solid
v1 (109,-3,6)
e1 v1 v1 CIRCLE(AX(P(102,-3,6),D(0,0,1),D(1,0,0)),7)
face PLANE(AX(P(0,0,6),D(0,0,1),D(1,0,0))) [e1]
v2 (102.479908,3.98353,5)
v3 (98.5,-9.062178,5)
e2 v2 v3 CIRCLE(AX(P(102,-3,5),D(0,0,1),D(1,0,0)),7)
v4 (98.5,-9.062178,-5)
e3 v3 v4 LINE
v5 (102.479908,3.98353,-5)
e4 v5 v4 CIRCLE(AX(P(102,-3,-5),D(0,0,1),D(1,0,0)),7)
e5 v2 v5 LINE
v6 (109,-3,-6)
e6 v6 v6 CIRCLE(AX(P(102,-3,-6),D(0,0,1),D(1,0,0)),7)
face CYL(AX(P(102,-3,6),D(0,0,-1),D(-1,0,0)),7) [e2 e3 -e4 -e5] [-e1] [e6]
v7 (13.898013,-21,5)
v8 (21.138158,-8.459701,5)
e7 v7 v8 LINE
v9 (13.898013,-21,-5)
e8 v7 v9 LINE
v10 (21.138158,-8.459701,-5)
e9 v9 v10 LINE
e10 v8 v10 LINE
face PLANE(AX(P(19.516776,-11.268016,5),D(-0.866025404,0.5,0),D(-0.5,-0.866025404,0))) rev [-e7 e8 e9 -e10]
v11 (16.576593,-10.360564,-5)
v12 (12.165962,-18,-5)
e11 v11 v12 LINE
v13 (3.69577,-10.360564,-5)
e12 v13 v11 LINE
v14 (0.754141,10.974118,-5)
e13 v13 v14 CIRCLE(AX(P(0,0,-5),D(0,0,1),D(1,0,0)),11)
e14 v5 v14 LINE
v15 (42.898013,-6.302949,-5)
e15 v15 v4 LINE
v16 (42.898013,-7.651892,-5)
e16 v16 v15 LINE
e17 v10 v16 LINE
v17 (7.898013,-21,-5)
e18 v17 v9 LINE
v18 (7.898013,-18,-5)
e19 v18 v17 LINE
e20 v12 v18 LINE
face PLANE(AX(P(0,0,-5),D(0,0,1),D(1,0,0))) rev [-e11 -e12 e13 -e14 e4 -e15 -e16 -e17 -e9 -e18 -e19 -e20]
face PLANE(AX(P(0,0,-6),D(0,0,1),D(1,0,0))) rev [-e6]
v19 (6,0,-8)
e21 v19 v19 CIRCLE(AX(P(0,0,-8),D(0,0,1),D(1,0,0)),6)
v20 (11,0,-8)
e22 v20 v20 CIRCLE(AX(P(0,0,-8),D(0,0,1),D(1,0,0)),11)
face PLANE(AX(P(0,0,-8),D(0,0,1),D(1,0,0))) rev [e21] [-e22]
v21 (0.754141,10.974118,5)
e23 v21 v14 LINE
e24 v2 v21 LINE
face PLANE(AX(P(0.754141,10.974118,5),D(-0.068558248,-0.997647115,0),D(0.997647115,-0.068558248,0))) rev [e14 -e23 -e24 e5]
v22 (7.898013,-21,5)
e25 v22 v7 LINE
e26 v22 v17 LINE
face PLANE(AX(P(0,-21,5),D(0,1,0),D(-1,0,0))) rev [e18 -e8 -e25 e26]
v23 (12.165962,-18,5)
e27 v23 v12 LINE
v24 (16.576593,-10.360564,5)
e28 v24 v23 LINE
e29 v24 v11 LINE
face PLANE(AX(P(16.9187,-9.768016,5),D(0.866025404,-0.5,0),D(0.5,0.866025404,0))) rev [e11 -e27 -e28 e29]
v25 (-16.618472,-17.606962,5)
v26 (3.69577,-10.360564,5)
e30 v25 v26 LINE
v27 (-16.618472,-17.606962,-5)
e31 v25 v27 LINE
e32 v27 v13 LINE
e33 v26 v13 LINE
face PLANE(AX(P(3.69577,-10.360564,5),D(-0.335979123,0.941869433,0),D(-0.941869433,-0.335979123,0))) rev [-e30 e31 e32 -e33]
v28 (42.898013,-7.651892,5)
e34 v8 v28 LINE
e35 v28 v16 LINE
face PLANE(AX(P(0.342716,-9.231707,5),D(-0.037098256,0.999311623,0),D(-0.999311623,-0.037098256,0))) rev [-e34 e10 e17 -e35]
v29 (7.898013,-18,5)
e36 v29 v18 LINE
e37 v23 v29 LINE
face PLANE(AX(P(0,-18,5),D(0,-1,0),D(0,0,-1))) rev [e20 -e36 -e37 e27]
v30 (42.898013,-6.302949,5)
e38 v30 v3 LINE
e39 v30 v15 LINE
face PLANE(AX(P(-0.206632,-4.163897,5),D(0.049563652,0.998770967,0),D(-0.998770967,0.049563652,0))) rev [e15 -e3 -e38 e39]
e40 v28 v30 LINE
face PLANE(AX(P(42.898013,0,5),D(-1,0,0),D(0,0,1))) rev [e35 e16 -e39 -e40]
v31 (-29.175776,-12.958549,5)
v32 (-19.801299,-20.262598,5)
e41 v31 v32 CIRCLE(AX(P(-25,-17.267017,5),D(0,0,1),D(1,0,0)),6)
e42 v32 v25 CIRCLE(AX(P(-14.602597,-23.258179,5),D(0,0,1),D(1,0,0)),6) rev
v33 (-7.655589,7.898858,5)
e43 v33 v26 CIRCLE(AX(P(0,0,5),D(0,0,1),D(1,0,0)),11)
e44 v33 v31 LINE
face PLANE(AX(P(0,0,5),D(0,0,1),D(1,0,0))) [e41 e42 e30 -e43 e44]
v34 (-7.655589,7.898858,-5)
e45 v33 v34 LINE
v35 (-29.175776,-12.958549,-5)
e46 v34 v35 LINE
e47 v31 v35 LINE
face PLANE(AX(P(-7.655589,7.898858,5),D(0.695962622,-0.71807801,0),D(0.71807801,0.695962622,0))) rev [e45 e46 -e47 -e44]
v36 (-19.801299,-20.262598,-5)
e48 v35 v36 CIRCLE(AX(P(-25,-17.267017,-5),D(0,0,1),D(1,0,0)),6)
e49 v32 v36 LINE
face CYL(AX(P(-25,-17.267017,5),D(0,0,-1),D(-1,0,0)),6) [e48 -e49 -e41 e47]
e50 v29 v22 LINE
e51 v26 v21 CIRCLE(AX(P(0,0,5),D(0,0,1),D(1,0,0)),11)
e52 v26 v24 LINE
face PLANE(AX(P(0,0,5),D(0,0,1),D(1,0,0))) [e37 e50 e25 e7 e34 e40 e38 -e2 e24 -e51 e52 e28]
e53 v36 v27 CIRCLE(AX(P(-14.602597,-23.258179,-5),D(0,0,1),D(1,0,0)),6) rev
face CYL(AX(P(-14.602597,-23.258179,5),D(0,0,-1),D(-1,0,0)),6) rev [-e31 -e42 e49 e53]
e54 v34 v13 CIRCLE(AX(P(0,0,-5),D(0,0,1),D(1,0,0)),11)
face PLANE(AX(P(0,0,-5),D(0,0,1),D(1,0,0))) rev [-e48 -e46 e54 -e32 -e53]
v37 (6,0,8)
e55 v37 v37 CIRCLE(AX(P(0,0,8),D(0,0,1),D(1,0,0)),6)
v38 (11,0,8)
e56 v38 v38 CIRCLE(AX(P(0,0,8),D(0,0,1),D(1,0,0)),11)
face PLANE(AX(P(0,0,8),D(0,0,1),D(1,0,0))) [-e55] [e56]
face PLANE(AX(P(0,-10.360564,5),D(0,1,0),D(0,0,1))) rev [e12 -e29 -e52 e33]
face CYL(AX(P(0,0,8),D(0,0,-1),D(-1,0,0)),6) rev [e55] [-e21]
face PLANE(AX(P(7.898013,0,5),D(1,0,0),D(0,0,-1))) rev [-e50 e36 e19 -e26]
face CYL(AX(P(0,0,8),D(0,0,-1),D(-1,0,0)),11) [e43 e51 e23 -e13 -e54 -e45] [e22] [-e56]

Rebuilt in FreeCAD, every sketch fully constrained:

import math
import FreeCAD as App
import Part
import Sketcher
from FreeCAD import Vector
Q = App.Units.Quantity

doc = App.newDocument("Part")
body = doc.addObject("PartDesign::Body", "Body")

sketch1 = body.newObject("Sketcher::SketchObject", "Sketch")
sketch1.AttachmentSupport = (doc.getObject("XY_Plane"), [""])
sketch1.MapMode = "FlatFace"
sketch1.addGeometry(Part.Circle(Vector(0, 0, 0), Vector(0, 0, 1), 11), False)
sketch1.addGeometry(Part.Circle(Vector(0, 0, 0), Vector(0, 0, 1), 6), False)
sketch1.addConstraint(Sketcher.Constraint("Coincident", 0, 3, -1, 1))
sketch1.addConstraint(Sketcher.Constraint("Coincident", 1, 3, -1, 1))
sketch1.addConstraint(Sketcher.Constraint("Diameter", 0, Q("22 mm")))
sketch1.addConstraint(Sketcher.Constraint("Diameter", 1, Q("12 mm")))
pad1 = body.newObject("PartDesign::Pad", "Pad")
pad1.Profile = sketch1
pad1.Length = 16
pad1.Midplane = True
body2 = doc.addObject("PartDesign::Body", "Body001")

sketch2 = body2.newObject("Sketcher::SketchObject", "Sketch001")
sketch2.AttachmentSupport = (doc.getObject("XY_Plane001"), [""])
sketch2.MapMode = "FlatFace"
sketch2.addGeometry(Part.Circle(Vector(102, -3, 0), Vector(0, 0, 1), 7), False)
sketch2.addConstraint(Sketcher.Constraint("Diameter", 0, Q("14 mm")))
sketch2.addConstraint(Sketcher.Constraint("DistanceX", -1, 1, 0, 3, Q("102 mm")))
sketch2.addConstraint(Sketcher.Constraint("DistanceY", 0, 3, -1, 1, Q("3 mm")))
pad2 = body2.newObject("PartDesign::Pad", "Pad001")
pad2.Profile = sketch2
pad2.Length = 12
pad2.Midplane = True
body.AllowCompound = True
doc.recompute()

boolean = body.newObject("PartDesign::Boolean", "Boolean")
boolean.Type = "Fuse"
boolean.addObjects([body2])

sketch3 = body.newObject("Sketcher::SketchObject", "Sketch002")
sketch3.AttachmentSupport = (doc.getObject("XY_Plane"), [""])
sketch3.MapMode = "FlatFace"
sketch3.addGeometry(Part.ArcOfCircle(Part.Circle(Vector(0, 0, 0), Vector(0, 0, 1), 11), math.radians(86), math.radians(134)), False)
sketch3.addGeometry(Part.LineSegment(Vector(-7.7, 7.9, 0), Vector(-29.2, -13, 0)), False)
sketch3.addGeometry(Part.ArcOfCircle(Part.Circle(Vector(-25, -17.3, 0), Vector(0, 0, 1), 6), math.radians(134), math.radians(330)), False)
sketch3.addGeometry(Part.ArcOfCircle(Part.Circle(Vector(-14.6, -23.3, 0), Vector(0, 0, 1), 6), math.radians(110), math.radians(150)), False)
sketch3.addGeometry(Part.LineSegment(Vector(-16.6, -17.6, 0), Vector(3.7, -10.4, 0)), False)
sketch3.addGeometry(Part.LineSegment(Vector(3.7, -10.4, 0), Vector(16.6, -10.4, 0)), False)
sketch3.addGeometry(Part.LineSegment(Vector(16.6, -10.4, 0), Vector(12.2, -18, 0)), False)
sketch3.addGeometry(Part.LineSegment(Vector(12.2, -18, 0), Vector(7.9, -18, 0)), False)
sketch3.addGeometry(Part.LineSegment(Vector(7.9, -18, 0), Vector(7.9, -21, 0)), False)
sketch3.addGeometry(Part.LineSegment(Vector(7.9, -21, 0), Vector(13.9, -21, 0)), False)
sketch3.addGeometry(Part.LineSegment(Vector(13.9, -21, 0), Vector(21.1, -8.5, 0)), False)
sketch3.addGeometry(Part.LineSegment(Vector(21.1, -8.5, 0), Vector(42.9, -7.7, 0)), False)
sketch3.addGeometry(Part.LineSegment(Vector(42.9, -7.7, 0), Vector(42.9, -6.3, 0)), False)
sketch3.addGeometry(Part.LineSegment(Vector(42.9, -6.3, 0), Vector(98.5, -9.1, 0)), False)
sketch3.addGeometry(Part.ArcOfCircle(Part.Circle(Vector(102, -3, 0), Vector(0, 0, 1), 7), math.radians(86), math.radians(240)), False)
sketch3.addGeometry(Part.LineSegment(Vector(102.5, 4, 0), Vector(0.8, 11, 0)), False)
sketch3.addConstraint(Sketcher.Constraint("Tangent", 0, 2, 1, 1))
sketch3.addConstraint(Sketcher.Constraint("Tangent", 1, 2, 2, 1))
sketch3.addConstraint(Sketcher.Constraint("Tangent", 2, 2, 3, 2))
sketch3.addConstraint(Sketcher.Constraint("Tangent", 3, 1, 4, 1))
sketch3.addConstraint(Sketcher.Constraint("Coincident", 4, 2, 5, 1))
sketch3.addConstraint(Sketcher.Constraint("Coincident", 5, 2, 6, 1))
sketch3.addConstraint(Sketcher.Constraint("Coincident", 6, 2, 7, 1))
sketch3.addConstraint(Sketcher.Constraint("Coincident", 7, 2, 8, 1))
sketch3.addConstraint(Sketcher.Constraint("Coincident", 8, 2, 9, 1))
sketch3.addConstraint(Sketcher.Constraint("Coincident", 9, 2, 10, 1))
sketch3.addConstraint(Sketcher.Constraint("Coincident", 10, 2, 11, 1))
sketch3.addConstraint(Sketcher.Constraint("Coincident", 11, 2, 12, 1))
sketch3.addConstraint(Sketcher.Constraint("Coincident", 12, 2, 13, 1))
sketch3.addConstraint(Sketcher.Constraint("Coincident", 13, 2, 14, 2))
sketch3.addConstraint(Sketcher.Constraint("Tangent", 14, 1, 15, 1))
sketch3.addConstraint(Sketcher.Constraint("Tangent", 15, 2, 0, 1))
sketch3.addConstraint(Sketcher.Constraint("Horizontal", 5))
sketch3.addConstraint(Sketcher.Constraint("Horizontal", 7))
sketch3.addConstraint(Sketcher.Constraint("Vertical", 8))
sketch3.addConstraint(Sketcher.Constraint("Horizontal", 9))
sketch3.addConstraint(Sketcher.Constraint("Vertical", 12))
sketch3.addConstraint(Sketcher.Constraint("Coincident", 0, 3, -1, 1))
sketch3.addConstraint(Sketcher.Constraint("Equal", 2, 3))
sketch3.addConstraint(Sketcher.Constraint("Parallel", 6, 10))
sketch3.addConstraint(Sketcher.Constraint("Radius", 0, Q("11 mm")))
sketch3.addConstraint(Sketcher.Constraint("Radius", 2, Q("6 mm")))
sketch3.addConstraint(Sketcher.Constraint("Radius", 14, Q("7 mm")))
sketch3.addConstraint(Sketcher.Constraint("DistanceX", 9, 1, 9, 2, Q("6 mm")))
sketch3.addConstraint(Sketcher.Constraint("DistanceY", 8, 2, 8, 1, Q("3 mm")))
sketch3.addConstraint(Sketcher.Constraint("Angle", 6, Q("-120 deg")))
sketch3.addConstraint(Sketcher.Constraint("DistanceX", 2, 3, -1, 1, Q("25 mm")))
sketch3.addConstraint(Sketcher.Constraint("DistanceX", -1, 1, 14, 3, Q("102 mm")))
sketch3.addConstraint(Sketcher.Constraint("DistanceY", 14, 3, -1, 1, Q("3 mm")))
sketch3.addConstraint(Sketcher.Constraint("DistanceY", 6, 2, -1, 1, Q("18 mm")))
sketch3.addConstraint(Sketcher.Constraint("DistanceX", 9, 2, 11, 2, Q("29 mm")))
sketch3.addConstraint(Sketcher.Constraint("DistanceX", -1, 1, 13, 2, Q("98.5 mm")))
sketch3.addConstraint(Sketcher.Constraint("DistanceX", 7, 2, 7, 1, Q("4.267949 mm")))
sketch3.addConstraint(Sketcher.Constraint("DistanceX", 2, 2, -1, 1, Q("19.801299 mm")))
sketch3.addConstraint(Sketcher.Constraint("DistanceY", 2, 2, -1, 1, Q("20.262598 mm")))
sketch3.addConstraint(Sketcher.Constraint("DistanceY", 10, 2, -1, 1, Q("8.459701 mm")))
sketch3.addConstraint(Sketcher.Constraint("DistanceY", 3, 1, 4, 2, Q("7.246399 mm")))
sketch3.addConstraint(Sketcher.Constraint("Distance", 6, Q("8.821261 mm")))
sketch3.addConstraint(Sketcher.Constraint("DistanceX", 5, 1, 5, 2, Q("12.880822 mm")))
sketch3.addConstraint(Sketcher.Constraint("DistanceY", 12, 1, 12, 2, Q("1.348943 mm")))
sketch3.addConstraint(Sketcher.Constraint("DistanceY", 11, 2, -1, 1, Q("7.651892 mm")))
pad3 = body.newObject("PartDesign::Pad", "Pad002")
pad3.Profile = sketch3
pad3.Length = 10
pad3.Midplane = True

sketch4 = body.newObject("Sketcher::SketchObject", "Sketch003")
sketch4.AttachmentSupport = (doc.getObject("XY_Plane"), [""])
sketch4.MapMode = "FlatFace"
sketch4.addGeometry(Part.Circle(Vector(0, 0, 0), Vector(0, 0, 1), 6), False)
sketch4.addConstraint(Sketcher.Constraint("Coincident", 0, 3, -1, 1))
sketch4.addConstraint(Sketcher.Constraint("Diameter", 0, Q("12 mm")))
pocket1 = body.newObject("PartDesign::Pocket", "Pocket")
pocket1.Profile = sketch4
pocket1.Type = "ThroughAll"
pocket1.Midplane = True

doc.recompute()
